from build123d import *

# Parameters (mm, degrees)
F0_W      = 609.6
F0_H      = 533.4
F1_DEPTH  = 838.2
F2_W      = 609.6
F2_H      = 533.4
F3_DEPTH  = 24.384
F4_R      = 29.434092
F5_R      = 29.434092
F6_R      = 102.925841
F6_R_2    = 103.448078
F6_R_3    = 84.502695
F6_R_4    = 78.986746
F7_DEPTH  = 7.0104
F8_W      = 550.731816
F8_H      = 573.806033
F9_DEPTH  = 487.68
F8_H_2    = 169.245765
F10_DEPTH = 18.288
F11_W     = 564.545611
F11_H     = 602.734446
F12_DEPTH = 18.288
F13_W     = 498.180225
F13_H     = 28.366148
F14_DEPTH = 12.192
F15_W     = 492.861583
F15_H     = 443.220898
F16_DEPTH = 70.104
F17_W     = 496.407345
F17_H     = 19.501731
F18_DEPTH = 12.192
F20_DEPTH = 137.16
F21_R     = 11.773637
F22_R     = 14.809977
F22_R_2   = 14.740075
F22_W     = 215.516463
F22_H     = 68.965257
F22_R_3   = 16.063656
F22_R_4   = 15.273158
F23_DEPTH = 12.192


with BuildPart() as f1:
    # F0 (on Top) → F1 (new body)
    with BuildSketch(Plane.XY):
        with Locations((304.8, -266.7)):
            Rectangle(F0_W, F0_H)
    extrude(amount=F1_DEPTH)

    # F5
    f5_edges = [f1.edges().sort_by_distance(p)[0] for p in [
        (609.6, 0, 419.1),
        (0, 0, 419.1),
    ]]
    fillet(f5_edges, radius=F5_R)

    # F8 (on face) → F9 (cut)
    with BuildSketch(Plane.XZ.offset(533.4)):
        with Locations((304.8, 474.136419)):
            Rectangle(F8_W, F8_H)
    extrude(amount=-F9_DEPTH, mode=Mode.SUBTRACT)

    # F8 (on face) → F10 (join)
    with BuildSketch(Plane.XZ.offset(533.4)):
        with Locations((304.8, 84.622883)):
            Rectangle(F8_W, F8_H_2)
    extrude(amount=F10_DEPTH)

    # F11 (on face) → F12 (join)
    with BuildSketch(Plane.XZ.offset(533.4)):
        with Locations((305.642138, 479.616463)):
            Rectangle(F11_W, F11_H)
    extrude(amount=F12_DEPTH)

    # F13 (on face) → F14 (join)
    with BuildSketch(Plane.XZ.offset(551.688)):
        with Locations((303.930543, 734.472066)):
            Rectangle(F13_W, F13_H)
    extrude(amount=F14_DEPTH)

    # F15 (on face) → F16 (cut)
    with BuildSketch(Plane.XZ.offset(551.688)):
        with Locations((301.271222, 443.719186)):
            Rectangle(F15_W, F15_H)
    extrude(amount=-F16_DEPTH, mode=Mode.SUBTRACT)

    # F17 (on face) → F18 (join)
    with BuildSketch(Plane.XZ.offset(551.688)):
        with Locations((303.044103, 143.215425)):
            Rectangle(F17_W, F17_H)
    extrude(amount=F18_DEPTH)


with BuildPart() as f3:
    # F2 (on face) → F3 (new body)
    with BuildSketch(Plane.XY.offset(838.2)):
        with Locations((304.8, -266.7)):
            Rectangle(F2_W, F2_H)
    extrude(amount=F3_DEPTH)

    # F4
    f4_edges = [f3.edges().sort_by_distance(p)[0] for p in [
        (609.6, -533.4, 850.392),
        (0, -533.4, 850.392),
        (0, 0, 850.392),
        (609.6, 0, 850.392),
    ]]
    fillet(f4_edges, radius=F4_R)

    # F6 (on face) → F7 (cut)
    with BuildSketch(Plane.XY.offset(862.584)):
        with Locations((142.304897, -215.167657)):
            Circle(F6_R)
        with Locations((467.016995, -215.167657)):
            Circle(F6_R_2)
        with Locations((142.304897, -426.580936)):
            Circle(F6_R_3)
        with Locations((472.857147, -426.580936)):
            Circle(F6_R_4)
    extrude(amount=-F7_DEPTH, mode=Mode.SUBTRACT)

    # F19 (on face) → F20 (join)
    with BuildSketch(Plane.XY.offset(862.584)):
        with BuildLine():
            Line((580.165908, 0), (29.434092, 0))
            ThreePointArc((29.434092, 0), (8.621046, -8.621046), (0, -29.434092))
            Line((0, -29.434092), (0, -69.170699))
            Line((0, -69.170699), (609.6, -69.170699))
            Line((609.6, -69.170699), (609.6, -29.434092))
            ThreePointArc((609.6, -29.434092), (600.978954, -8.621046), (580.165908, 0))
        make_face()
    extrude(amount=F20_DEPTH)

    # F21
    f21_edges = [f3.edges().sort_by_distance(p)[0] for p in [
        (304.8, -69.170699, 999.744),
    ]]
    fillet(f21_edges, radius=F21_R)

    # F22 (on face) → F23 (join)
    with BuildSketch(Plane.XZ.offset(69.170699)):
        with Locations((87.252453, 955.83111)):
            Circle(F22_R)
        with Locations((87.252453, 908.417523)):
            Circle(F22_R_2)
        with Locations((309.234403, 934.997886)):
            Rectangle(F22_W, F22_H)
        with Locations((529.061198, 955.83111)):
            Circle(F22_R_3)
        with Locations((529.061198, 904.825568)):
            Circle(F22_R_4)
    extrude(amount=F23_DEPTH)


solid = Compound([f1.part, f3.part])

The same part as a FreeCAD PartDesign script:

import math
import FreeCAD as App
import Part
import Sketcher
from FreeCAD import Vector
Q = App.Units.Quantity


def edges_at(feature, points):
    """Names of the edges that pass closest to the given points."""
    edges = feature.Shape.Edges
    near = lambda p: min(range(len(edges)), key=lambda i: edges[i].distToShape(Part.Vertex(*p))[0])
    return sorted({f"Edge{near(p) + 1}" for p in points})

doc = App.newDocument("Part")
body = doc.addObject("PartDesign::Body", "Body")

# Sketch on XY plane
sketch1 = body.newObject("Sketcher::SketchObject", "Sketch")
sketch1.AttachmentSupport = (doc.getObject("XY_Plane"), [""])
sketch1.MapMode = "FlatFace"
sketch1.addGeometry([
    Part.LineSegment(Vector(0, 0, 0), Vector(0, -533.4, 0)),
    Part.LineSegment(Vector(0, -533.4, 0), Vector(609.6, -533.4, 0)),
    Part.LineSegment(Vector(609.6, -533.4, 0), Vector(609.6, 0, 0)),
    Part.LineSegment(Vector(609.6, 0, 0), Vector(0, 0, 0)),
], False)
sketch1.addConstraint([
    Sketcher.Constraint("Coincident", 0, 2, 1, 1),
    Sketcher.Constraint("Coincident", 1, 2, 2, 1),
    Sketcher.Constraint("Coincident", 2, 2, 3, 1),
    Sketcher.Constraint("Coincident", 3, 2, 0, 1),
    Sketcher.Constraint("Vertical", 0),
    Sketcher.Constraint("Horizontal", 1),
    Sketcher.Constraint("Vertical", 2),
    Sketcher.Constraint("Horizontal", 3),
    Sketcher.Constraint("Coincident", 3, 2, -1, 1),
    Sketcher.Constraint("DistanceX", 1, 1, 1, 2, Q("24 in")),
    Sketcher.Constraint("DistanceY", 0, 2, 0, 1, Q("21 in")),
])
pad1 = body.newObject("PartDesign::Pad", "Pad")
pad1.Profile = sketch1
pad1.Length = Q("33 in")
doc.recompute()

fillet = body.newObject("PartDesign::Fillet", "Fillet")
fillet.Base = (pad1, edges_at(pad1, [(609.6, 0, 419.1), (0, 0, 419.1)]))
fillet.Radius = 29.434092

# Sketch on XZ plane
sketch2 = body.newObject("Sketcher::SketchObject", "Sketch001")
sketch2.AttachmentSupport = (doc.getObject("XZ_Plane"), [""])
sketch2.MapMode = "FlatFace"
sketch2.AttachmentOffset = App.Placement(Vector(0, 0, 21 * 25.4), App.Rotation())
sketch2.addGeometry([
    Part.LineSegment(Vector(29.434092, 761.039435, 0), Vector(29.434092, 187.233403, 0)),
    Part.LineSegment(Vector(29.434092, 187.233403, 0), Vector(580.165908, 187.233403, 0)),
    Part.LineSegment(Vector(580.165908, 187.233403, 0), Vector(580.165908, 761.039435, 0)),
    Part.LineSegment(Vector(580.165908, 761.039435, 0), Vector(29.434092, 761.039435, 0)),
], False)
sketch2.addConstraint([
    Sketcher.Constraint("Coincident", 0, 2, 1, 1),
    Sketcher.Constraint("Coincident", 1, 2, 2, 1),
    Sketcher.Constraint("Coincident", 2, 2, 3, 1),
    Sketcher.Constraint("Coincident", 3, 2, 0, 1),
    Sketcher.Constraint("Vertical", 0),
    Sketcher.Constraint("Horizontal", 1),
    Sketcher.Constraint("Vertical", 2),
    Sketcher.Constraint("Horizontal", 3),
    Sketcher.Constraint("DistanceX", 1, 1, 1, 2, 550.731816),
    Sketcher.Constraint("DistanceY", 0, 2, 0, 1, 573.806033),
    Sketcher.Constraint("DistanceX", -1, 1, 0, 2, 29.434092),
    Sketcher.Constraint("DistanceY", -1, 1, 0, 2, 187.233403),
])
pocket1 = body.newObject("PartDesign::Pocket", "Pocket")
pocket1.Profile = sketch2
pocket1.Length = Q("19.2 in")

# Sketch on XZ plane
sketch3 = body.newObject("Sketcher::SketchObject", "Sketch002")
sketch3.AttachmentSupport = (doc.getObject("XZ_Plane"), [""])
sketch3.MapMode = "FlatFace"
sketch3.AttachmentOffset = App.Placement(Vector(0, 0, 21 * 25.4), App.Rotation())
sketch3.addGeometry([
    Part.LineSegment(Vector(29.434092, 169.245766, 0), Vector(29.434092, 0, 0)),
    Part.LineSegment(Vector(29.434092, 0, 0), Vector(580.165908, 0, 0)),
    Part.LineSegment(Vector(580.165908, 0, 0), Vector(580.165908, 169.245766, 0)),
    Part.LineSegment(Vector(580.165908, 169.245766, 0), Vector(29.434092, 169.245766, 0)),
], False)
sketch3.addConstraint([
    Sketcher.Constraint("Coincident", 0, 2, 1, 1),
    Sketcher.Constraint("Coincident", 1, 2, 2, 1),
    Sketcher.Constraint("Coincident", 2, 2, 3, 1),
    Sketcher.Constraint("Coincident", 3, 2, 0, 1),
    Sketcher.Constraint("Vertical", 0),
    Sketcher.Constraint("Horizontal", 1),
    Sketcher.Constraint("Vertical", 2),
    Sketcher.Constraint("Horizontal", 3),
    Sketcher.Constraint("PointOnObject", 0, 2, -1),
    Sketcher.Constraint("DistanceX", 1, 1, 1, 2, 550.731816),
    Sketcher.Constraint("DistanceY", 0, 2, 0, 1, 169.245765),
    Sketcher.Constraint("DistanceX", -1, 1, 0, 2, 29.434092),
])
pad2 = body.newObject("PartDesign::Pad", "Pad001")
pad2.Profile = sketch3
pad2.Length = Q("0.72 in")

# Sketch on XZ plane
sketch4 = body.newObject("Sketcher::SketchObject", "Sketch003")
sketch4.AttachmentSupport = (doc.getObject("XZ_Plane"), [""])
sketch4.MapMode = "FlatFace"
sketch4.AttachmentOffset = App.Placement(Vector(0, 0, 21 * 25.4), App.Rotation())
sketch4.addGeometry([
    Part.LineSegment(Vector(23.369332, 780.983686, 0), Vector(23.369332, 178.24924, 0)),
    Part.LineSegment(Vector(23.369332, 178.24924, 0), Vector(587.914944, 178.24924, 0)),
    Part.LineSegment(Vector(587.914944, 178.24924, 0), Vector(587.914944, 780.983686, 0)),
    Part.LineSegment(Vector(587.914944, 780.983686, 0), Vector(23.369332, 780.983686, 0)),
], False)
sketch4.addConstraint([
    Sketcher.Constraint("Coincident", 0, 2, 1, 1),
    Sketcher.Constraint("Coincident", 1, 2, 2, 1),
    Sketcher.Constraint("Coincident", 2, 2, 3, 1),
    Sketcher.Constraint("Coincident", 3, 2, 0, 1),
    Sketcher.Constraint("Vertical", 0),
    Sketcher.Constraint("Horizontal", 1),
    Sketcher.Constraint("Vertical", 2),
    Sketcher.Constraint("Horizontal", 3),
    Sketcher.Constraint("DistanceX", 1, 1, 1, 2, 564.545611),
    Sketcher.Constraint("DistanceY", 0, 2, 0, 1, 602.734446),
    Sketcher.Constraint("DistanceY", -1, 1, 0, 2, 178.24924),
    Sketcher.Constraint("DistanceX", -1, 1, 0, 2, 23.369332),
])
pad3 = body.newObject("PartDesign::Pad", "Pad002")
pad3.Profile = sketch4
pad3.Length = Q("0.72 in")

# Sketch on XZ plane
sketch5 = body.newObject("Sketcher::SketchObject", "Sketch004")
sketch5.AttachmentSupport = (doc.getObject("XZ_Plane"), [""])
sketch5.MapMode = "FlatFace"
sketch5.AttachmentOffset = App.Placement(Vector(0, 0, 21.72 * 25.4), App.Rotation())
sketch5.addGeometry([
    Part.LineSegment(Vector(54.84043, 748.65514, 0), Vector(54.84043, 720.288992, 0)),
    Part.LineSegment(Vector(54.84043, 720.288992, 0), Vector(553.020655, 720.288992, 0)),
    Part.LineSegment(Vector(553.020655, 720.288992, 0), Vector(553.020655, 748.65514, 0)),
    Part.LineSegment(Vector(553.020655, 748.65514, 0), Vector(54.84043, 748.65514, 0)),
], False)
sketch5.addConstraint([
    Sketcher.Constraint("Coincident", 0, 2, 1, 1),
    Sketcher.Constraint("Coincident", 1, 2, 2, 1),
    Sketcher.Constraint("Coincident", 2, 2, 3, 1),
    Sketcher.Constraint("Coincident", 3, 2, 0, 1),
    Sketcher.Constraint("Vertical", 0),
    Sketcher.Constraint("Horizontal", 1),
    Sketcher.Constraint("Vertical", 2),
    Sketcher.Constraint("Horizontal", 3),
    Sketcher.Constraint("DistanceX", 1, 1, 1, 2, 498.180225),
    Sketcher.Constraint("DistanceY", 0, 2, 0, 1, 28.366148),
    Sketcher.Constraint("DistanceX", -1, 1, 0, 2, 54.84043),
    Sketcher.Constraint("DistanceY", -1, 1, 0, 2, 720.288992),
])
pad4 = body.newObject("PartDesign::Pad", "Pad003")
pad4.Profile = sketch5
pad4.Length = Q("0.48 in")

# Sketch on XZ plane
sketch6 = body.newObject("Sketcher::SketchObject", "Sketch005")
sketch6.AttachmentSupport = (doc.getObject("XZ_Plane"), [""])
sketch6.MapMode = "FlatFace"
sketch6.AttachmentOffset = App.Placement(Vector(0, 0, 21.72 * 25.4), App.Rotation())
sketch6.addGeometry([
    Part.LineSegment(Vector(54.84043, 665.329635, 0), Vector(54.84043, 222.108737, 0)),
    Part.LineSegment(Vector(54.84043, 222.108737, 0), Vector(547.702014, 222.108737, 0)),
    Part.LineSegment(Vector(547.702014, 222.108737, 0), Vector(547.702014, 665.329635, 0)),
    Part.LineSegment(Vector(547.702014, 665.329635, 0), Vector(54.84043, 665.329635, 0)),
], False)
sketch6.addConstraint([
    Sketcher.Constraint("Coincident", 0, 2, 1, 1),
    Sketcher.Constraint("Coincident", 1, 2, 2, 1),
    Sketcher.Constraint("Coincident", 2, 2, 3, 1),
    Sketcher.Constraint("Coincident", 3, 2, 0, 1),
    Sketcher.Constraint("Vertical", 0),
    Sketcher.Constraint("Horizontal", 1),
    Sketcher.Constraint("Vertical", 2),
    Sketcher.Constraint("Horizontal", 3),
    Sketcher.Constraint("DistanceY", 0, 2, 0, 1, 443.220898),
    Sketcher.Constraint("DistanceX", 1, 1, 1, 2, 492.861583),
    Sketcher.Constraint("DistanceX", -1, 1, 0, 2, 54.84043),
    Sketcher.Constraint("DistanceY", -1, 1, 0, 2, 222.108737),
])
pocket2 = body.newObject("PartDesign::Pocket", "Pocket001")
pocket2.Profile = sketch6
pocket2.Length = Q("2.76 in")

# Sketch on XZ plane
sketch7 = body.newObject("Sketcher::SketchObject", "Sketch006")
sketch7.AttachmentSupport = (doc.getObject("XZ_Plane"), [""])
sketch7.MapMode = "FlatFace"
sketch7.AttachmentOffset = App.Placement(Vector(0, 0, 21.72 * 25.4), App.Rotation())
sketch7.addGeometry([
    Part.LineSegment(Vector(54.84043, 152.966291, 0), Vector(54.84043, 133.46456, 0)),
    Part.LineSegment(Vector(54.84043, 133.46456, 0), Vector(551.247775, 133.46456, 0)),
    Part.LineSegment(Vector(551.247775, 133.46456, 0), Vector(551.247775, 152.966291, 0)),
    Part.LineSegment(Vector(551.247775, 152.966291, 0), Vector(54.84043, 152.966291, 0)),
], False)
sketch7.addConstraint([
    Sketcher.Constraint("Coincident", 0, 2, 1, 1),
    Sketcher.Constraint("Coincident", 1, 2, 2, 1),
    Sketcher.Constraint("Coincident", 2, 2, 3, 1),
    Sketcher.Constraint("Coincident", 3, 2, 0, 1),
    Sketcher.Constraint("Vertical", 0),
    Sketcher.Constraint("Horizontal", 1),
    Sketcher.Constraint("Vertical", 2),
    Sketcher.Constraint("Horizontal", 3),
    Sketcher.Constraint("DistanceY", 0, 2, 0, 1, 19.501731),
    Sketcher.Constraint("DistanceX", 1, 1, 1, 2, 496.407345),
    Sketcher.Constraint("DistanceX", -1, 1, 0, 2, 54.84043),
    Sketcher.Constraint("DistanceY", -1, 1, 0, 2, 133.46456),
])
pad5 = body.newObject("PartDesign::Pad", "Pad004")
pad5.Profile = sketch7
pad5.Length = Q("0.48 in")
body2 = doc.addObject("PartDesign::Body", "Body001")

# Sketch on XY plane
sketch8 = body2.newObject("Sketcher::SketchObject", "Sketch007")
sketch8.AttachmentSupport = (doc.getObject("XY_Plane001"), [""])
sketch8.MapMode = "FlatFace"
sketch8.AttachmentOffset = App.Placement(Vector(0, 0, 33 * 25.4), App.Rotation())
sketch8.addGeometry([
    Part.LineSegment(Vector(0, 0, 0), Vector(0, -533.4, 0)),
    Part.LineSegment(Vector(0, -533.4, 0), Vector(609.6, -533.4, 0)),
    Part.LineSegment(Vector(609.6, -533.4, 0), Vector(609.6, 0, 0)),
    Part.LineSegment(Vector(609.6, 0, 0), Vector(0, 0, 0)),
], False)
sketch8.addConstraint([
    Sketcher.Constraint("Coincident", 0, 2, 1, 1),
    Sketcher.Constraint("Coincident", 1, 2, 2, 1),
    Sketcher.Constraint("Coincident", 2, 2, 3, 1),
    Sketcher.Constraint("Coincident", 3, 2, 0, 1),
    Sketcher.Constraint("Vertical", 0),
    Sketcher.Constraint("Horizontal", 1),
    Sketcher.Constraint("Vertical", 2),
    Sketcher.Constraint("Horizontal", 3),
    Sketcher.Constraint("Coincident", 3, 2, -1, 1),
    Sketcher.Constraint("DistanceX", 1, 1, 1, 2, Q("24 in")),
    Sketcher.Constraint("DistanceY", 0, 2, 0, 1, Q("21 in")),
])
pad6 = body2.newObject("PartDesign::Pad", "Pad005")
pad6.Profile = sketch8
pad6.Length = Q("0.96 in")
doc.recompute()

fillet2 = body2.newObject("PartDesign::Fillet", "Fillet001")
fillet2.Base = (pad6, edges_at(pad6, [
    (609.6, -533.4, 850.392),
    (0, -533.4, 850.392),
    (0, 0, 850.392),
    (609.6, 0, 850.392),
]))
fillet2.Radius = 29.434092

# Sketch on XY plane
sketch9 = body2.newObject("Sketcher::SketchObject", "Sketch008")
sketch9.AttachmentSupport = (doc.getObject("XY_Plane001"), [""])
sketch9.MapMode = "FlatFace"
sketch9.AttachmentOffset = App.Placement(Vector(0, 0, 33.96 * 25.4), App.Rotation())
sketch9.addGeometry([
    Part.Circle(Vector(142.304897, -215.167657, 0), Vector(0, 0, 1), 102.925841),
    Part.Circle(Vector(467.016995, -215.167657, 0), Vector(0, 0, 1), 103.448078),
    Part.Circle(Vector(142.304897, -426.580936, 0), Vector(0, 0, 1), 84.502695),
    Part.Circle(Vector(472.857147, -426.580936, 0), Vector(0, 0, 1), 78.986746),
], False)
sketch9.addConstraint([
    Sketcher.Constraint("Horizontal", 0, 3, 1, 3),
    Sketcher.Constraint("Horizontal", 2, 3, 3, 3),
    Sketcher.Constraint("Vertical", 0, 3, 2, 3),
    Sketcher.Constraint("Diameter", 2, 169.00539),
    Sketcher.Constraint("Diameter", 3, 157.973492),
    Sketcher.Constraint("Diameter", 0, 205.851682),
    Sketcher.Constraint("Diameter", 1, 206.896156),
    Sketcher.Constraint("DistanceY", 2, 3, 0, 3, 211.413279),
    Sketcher.Constraint("DistanceX", 1, 3, 3, 3, 5.840152),
    Sketcher.Constraint("DistanceX", 2, 3, 3, 3, 330.55225),
    Sketcher.Constraint("DistanceX", -1, 1, 0, 3, 142.304897),
    Sketcher.Constraint("DistanceY", 0, 3, -1, 1, 215.167657),
])
pocket3 = body2.newObject("PartDesign::Pocket", "Pocket002")
pocket3.Profile = sketch9
pocket3.Length = Q("0.276 in")

# Sketch on XY plane
sketch10 = body2.newObject("Sketcher::SketchObject", "Sketch009")
sketch10.AttachmentSupport = (doc.getObject("XY_Plane001"), [""])
sketch10.MapMode = "FlatFace"
sketch10.AttachmentOffset = App.Placement(Vector(0, 0, 33.96 * 25.4), App.Rotation())
sketch10.addGeometry([
    Part.LineSegment(Vector(580.165908, 0, 0), Vector(29.434092, 0, 0)),  # 0
    Part.ArcOfCircle(Part.Circle(Vector(29.434092, -29.434092, 0), Vector(0, 0, 1), 29.434092), math.radians(90), math.radians(180)),  # 1
    Part.LineSegment(Vector(0, -29.434092, 0), Vector(0, -69.170699, 0)),  # 2
    Part.LineSegment(Vector(0, -69.170699, 0), Vector(609.6, -69.170699, 0)),  # 3
    Part.LineSegment(Vector(609.6, -69.170699, 0), Vector(609.6, -29.434092, 0)),  # 4
    Part.ArcOfCircle(Part.Circle(Vector(580.165908, -29.434092, 0), Vector(0, 0, 1), 29.434092), math.radians(0), math.radians(90)),  # 5
], False)
sketch10.addConstraint([
    Sketcher.Constraint("Tangent", 0, 2, 1, 1),
    Sketcher.Constraint("Tangent", 1, 2, 2, 1),
    Sketcher.Constraint("Coincident", 2, 2, 3, 1),
    Sketcher.Constraint("Coincident", 3, 2, 4, 1),
    Sketcher.Constraint("Tangent", 4, 2, 5, 1),
    Sketcher.Constraint("Tangent", 5, 2, 0, 1),
    Sketcher.Constraint("Horizontal", 0),
    Sketcher.Constraint("Vertical", 2),
    Sketcher.Constraint("Horizontal", 3),
    Sketcher.Constraint("Vertical", 4),
    Sketcher.Constraint("Equal", 1, 5),
    Sketcher.Constraint("PointOnObject", 0, 2, -1),
    Sketcher.Constraint("PointOnObject", 1, 2, -2),
    Sketcher.Constraint("DistanceX", 3, 1, 3, 2, Q("24 in")),
    Sketcher.Constraint("Radius", 1, 29.434092),
    Sketcher.Constraint("DistanceY", 2, 2, -1, 1, 69.170699),
])
pad7 = body2.newObject("PartDesign::Pad", "Pad006")
pad7.Profile = sketch10
pad7.Length = Q("5.4 in")
doc.recompute()

fillet3 = body2.newObject("PartDesign::Fillet", "Fillet002")
fillet3.Base = (pad7, edges_at(pad7, [(304.8, -69.171, 999.744)]))
fillet3.Radius = 11.773637

# Sketch on XZ plane
sketch11 = body2.newObject("Sketcher::SketchObject", "Sketch010")
sketch11.AttachmentSupport = (doc.getObject("XZ_Plane001"), [""])
sketch11.MapMode = "FlatFace"
sketch11.AttachmentOffset = App.Placement(Vector(0, 0, 69.170699), App.Rotation())
sketch11.addGeometry([
    Part.Circle(Vector(87.252453, 955.83111, 0), Vector(0, 0, 1), 14.809977),  # 0
    Part.Circle(Vector(87.252453, 908.417523, 0), Vector(0, 0, 1), 14.740075),  # 1
    Part.LineSegment(Vector(201.476171, 969.480515, 0), Vector(201.476171, 900.515257, 0)),  # 2
    Part.LineSegment(Vector(201.476171, 900.515257, 0), Vector(416.992635, 900.515257, 0)),  # 3
    Part.LineSegment(Vector(416.992635, 900.515257, 0), Vector(416.992635, 969.480515, 0)),  # 4
    Part.LineSegment(Vector(416.992635, 969.480515, 0), Vector(201.476171, 969.480515, 0)),  # 5
    Part.Circle(Vector(529.061198, 955.83111, 0), Vector(0, 0, 1), 16.063656),  # 6
    Part.Circle(Vector(529.061198, 904.825568, 0), Vector(0, 0, 1), 15.273158),  # 7
], False)
sketch11.addConstraint([
    Sketcher.Constraint("Coincident", 2, 2, 3, 1),
    Sketcher.Constraint("Coincident", 3, 2, 4, 1),
    Sketcher.Constraint("Coincident", 4, 2, 5, 1),
    Sketcher.Constraint("Coincident", 5, 2, 2, 1),
    Sketcher.Constraint("Vertical", 2),
    Sketcher.Constraint("Horizontal", 3),
    Sketcher.Constraint("Vertical", 4),
    Sketcher.Constraint("Horizontal", 5),
    Sketcher.Constraint("Horizontal", 0, 3, 6, 3),
    Sketcher.Constraint("Vertical", 0, 3, 1, 3),
    Sketcher.Constraint("Vertical", 6, 3, 7, 3),
    Sketcher.Constraint("Diameter", 1, 29.48015),
    Sketcher.Constraint("DistanceX", 3, 1, 3, 2, Q("8.4849001 in")),
    Sketcher.Constraint("Diameter", 0, 29.619954),
    Sketcher.Constraint("Diameter", 6, 32.127312),
    Sketcher.Constraint("Diameter", 7, 30.546316),
    Sketcher.Constraint("DistanceX", -1, 1, 6, 3, 529.061198),
    Sketcher.Constraint("DistanceY", 2, 2, 2, 1, 68.965257),
    Sketcher.Constraint("DistanceY", -1, 1, 0, 3, 955.83111),
    Sketcher.Constraint("DistanceY", -1, 1, 7, 3, 904.825568),
    Sketcher.Constraint("DistanceX", -1, 1, 2, 2, 201.476171),
    Sketcher.Constraint("DistanceX", 1, 3, 2, 2, 114.223718),
    Sketcher.Constraint("DistanceY", 2, 2, 7, 3, 4.310311),
    Sketcher.Constraint("DistanceY", 1, 3, 5, 2, 61.062992),
])
pad8 = body2.newObject("PartDesign::Pad", "Pad007")
pad8.Profile = sketch11
pad8.Length = Q("0.48 in")

doc.recompute()
